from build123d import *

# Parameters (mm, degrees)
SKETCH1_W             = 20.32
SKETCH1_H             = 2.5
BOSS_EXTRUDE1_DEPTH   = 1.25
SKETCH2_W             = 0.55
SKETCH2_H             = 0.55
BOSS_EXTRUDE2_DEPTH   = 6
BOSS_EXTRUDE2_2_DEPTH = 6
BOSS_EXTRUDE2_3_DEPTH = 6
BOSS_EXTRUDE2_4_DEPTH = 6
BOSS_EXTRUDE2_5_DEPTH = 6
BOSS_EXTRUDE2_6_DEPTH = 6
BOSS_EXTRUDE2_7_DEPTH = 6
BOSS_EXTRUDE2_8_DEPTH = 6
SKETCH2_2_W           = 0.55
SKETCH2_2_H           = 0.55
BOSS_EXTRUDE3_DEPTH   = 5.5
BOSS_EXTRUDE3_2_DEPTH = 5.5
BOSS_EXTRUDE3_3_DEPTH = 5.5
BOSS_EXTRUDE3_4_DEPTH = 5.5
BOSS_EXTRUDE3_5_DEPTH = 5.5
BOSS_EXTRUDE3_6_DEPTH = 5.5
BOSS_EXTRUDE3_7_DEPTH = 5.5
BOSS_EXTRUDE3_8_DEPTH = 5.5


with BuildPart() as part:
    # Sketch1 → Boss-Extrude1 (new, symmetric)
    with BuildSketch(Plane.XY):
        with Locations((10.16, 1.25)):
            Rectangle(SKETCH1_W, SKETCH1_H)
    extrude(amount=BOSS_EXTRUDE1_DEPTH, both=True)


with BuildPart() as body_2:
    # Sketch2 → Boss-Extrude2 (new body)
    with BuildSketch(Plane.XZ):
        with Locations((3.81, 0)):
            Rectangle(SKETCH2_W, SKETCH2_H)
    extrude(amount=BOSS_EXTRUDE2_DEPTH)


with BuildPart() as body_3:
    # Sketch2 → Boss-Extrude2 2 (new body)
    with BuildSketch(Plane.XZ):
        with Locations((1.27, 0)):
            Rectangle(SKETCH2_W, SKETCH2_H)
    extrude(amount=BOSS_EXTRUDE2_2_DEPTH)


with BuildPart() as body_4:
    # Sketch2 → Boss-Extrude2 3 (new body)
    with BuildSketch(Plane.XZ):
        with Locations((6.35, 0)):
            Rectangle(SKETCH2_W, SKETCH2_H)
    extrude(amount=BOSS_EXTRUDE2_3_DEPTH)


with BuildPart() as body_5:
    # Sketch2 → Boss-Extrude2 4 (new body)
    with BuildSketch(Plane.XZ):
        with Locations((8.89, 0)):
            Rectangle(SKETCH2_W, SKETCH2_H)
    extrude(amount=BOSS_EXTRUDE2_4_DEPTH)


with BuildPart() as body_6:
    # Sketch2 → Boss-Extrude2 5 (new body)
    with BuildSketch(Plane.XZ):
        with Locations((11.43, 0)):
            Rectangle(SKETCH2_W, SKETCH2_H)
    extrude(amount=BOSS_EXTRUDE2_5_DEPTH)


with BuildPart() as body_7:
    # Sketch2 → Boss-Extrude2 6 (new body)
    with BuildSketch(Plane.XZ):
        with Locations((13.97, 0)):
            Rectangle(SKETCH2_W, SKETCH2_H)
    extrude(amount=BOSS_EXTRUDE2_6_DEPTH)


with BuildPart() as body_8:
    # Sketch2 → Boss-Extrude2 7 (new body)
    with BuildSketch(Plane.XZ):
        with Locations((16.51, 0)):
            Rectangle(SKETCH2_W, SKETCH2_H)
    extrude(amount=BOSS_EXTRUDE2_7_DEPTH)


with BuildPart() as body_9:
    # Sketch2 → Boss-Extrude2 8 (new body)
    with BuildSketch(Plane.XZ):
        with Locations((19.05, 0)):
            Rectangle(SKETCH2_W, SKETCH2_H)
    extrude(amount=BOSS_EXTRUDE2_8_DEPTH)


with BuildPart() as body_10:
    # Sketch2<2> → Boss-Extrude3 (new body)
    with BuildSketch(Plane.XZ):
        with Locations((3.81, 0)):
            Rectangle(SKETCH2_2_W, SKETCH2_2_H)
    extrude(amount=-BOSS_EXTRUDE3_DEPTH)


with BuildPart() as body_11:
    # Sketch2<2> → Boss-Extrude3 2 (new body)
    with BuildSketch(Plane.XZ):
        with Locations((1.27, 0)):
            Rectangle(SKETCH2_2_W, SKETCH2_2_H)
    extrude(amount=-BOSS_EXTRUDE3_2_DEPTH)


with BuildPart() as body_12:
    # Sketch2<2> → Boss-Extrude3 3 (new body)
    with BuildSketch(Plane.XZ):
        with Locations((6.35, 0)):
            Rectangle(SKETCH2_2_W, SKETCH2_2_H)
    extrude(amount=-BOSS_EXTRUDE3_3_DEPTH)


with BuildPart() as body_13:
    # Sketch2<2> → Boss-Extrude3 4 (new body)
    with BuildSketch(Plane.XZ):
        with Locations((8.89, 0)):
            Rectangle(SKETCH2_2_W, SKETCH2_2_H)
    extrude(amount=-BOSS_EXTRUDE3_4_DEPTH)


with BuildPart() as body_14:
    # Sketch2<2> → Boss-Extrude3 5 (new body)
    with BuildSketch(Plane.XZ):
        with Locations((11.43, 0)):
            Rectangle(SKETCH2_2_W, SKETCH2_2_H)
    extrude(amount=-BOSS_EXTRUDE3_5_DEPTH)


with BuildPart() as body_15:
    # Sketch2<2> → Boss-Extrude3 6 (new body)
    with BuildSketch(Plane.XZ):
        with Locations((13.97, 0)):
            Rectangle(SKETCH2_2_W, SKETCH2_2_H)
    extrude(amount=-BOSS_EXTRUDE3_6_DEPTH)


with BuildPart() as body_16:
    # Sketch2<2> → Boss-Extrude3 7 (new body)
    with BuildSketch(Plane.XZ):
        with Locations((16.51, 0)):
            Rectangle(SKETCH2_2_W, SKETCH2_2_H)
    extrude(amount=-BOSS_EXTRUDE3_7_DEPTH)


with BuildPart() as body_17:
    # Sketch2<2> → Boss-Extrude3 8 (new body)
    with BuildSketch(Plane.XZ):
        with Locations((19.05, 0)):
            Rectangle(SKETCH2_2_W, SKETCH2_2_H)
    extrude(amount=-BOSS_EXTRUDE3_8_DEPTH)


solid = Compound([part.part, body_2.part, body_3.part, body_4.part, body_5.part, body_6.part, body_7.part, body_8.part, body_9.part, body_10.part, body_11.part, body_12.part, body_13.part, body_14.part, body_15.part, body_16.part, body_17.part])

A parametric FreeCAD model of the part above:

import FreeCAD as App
import Part
import Sketcher
from FreeCAD import Vector


def add_polygon(sketch, points):
    """Adds a closed chain of lines whose ends are joined by coincident constraints."""
    first, n = sketch.GeometryCount, len(points)
    for a, b in zip(points, points[1:] + points[:1]):
        sketch.addGeometry(Part.LineSegment(App.Vector(*a, 0), App.Vector(*b, 0)), False)
    for i in range(n):
        sketch.addConstraint(Sketcher.Constraint("Coincident", first + i, 2, first + (i + 1) % n, 1))

doc = App.newDocument("Part")
body = doc.addObject("PartDesign::Body", "Body")

# Sketch on XY plane
sketch1 = body.newObject("Sketcher::SketchObject", "Sketch")
sketch1.AttachmentSupport = (doc.getObject("XY_Plane"), [""])
sketch1.MapMode = "FlatFace"
add_polygon(sketch1, [(0, 2.5), (0, 0), (20.3, 0), (20.3, 2.5)])  # lines 0-3
sketch1.addConstraint(Sketcher.Constraint("Vertical", 0))
sketch1.addConstraint(Sketcher.Constraint("Horizontal", 1))
sketch1.addConstraint(Sketcher.Constraint("Vertical", 2))
sketch1.addConstraint(Sketcher.Constraint("Horizontal", 3))
sketch1.addConstraint(Sketcher.Constraint("Coincident", 0, 2, -1, 1))
sketch1.addConstraint(Sketcher.Constraint("DistanceY", 0, 2, 0, 1, 2.5))
sketch1.addConstraint(Sketcher.Constraint("DistanceX", 1, 1, 1, 2, 20.32))
pad1 = body.newObject("PartDesign::Pad", "Pad")
pad1.Profile = sketch1
pad1.Length = 2.5
pad1.Midplane = True
body2 = doc.addObject("PartDesign::Body", "Body001")

# Sketch on XZ plane
sketch2 = body2.newObject("Sketcher::SketchObject", "Sketch001")
sketch2.AttachmentSupport = (doc.getObject("XZ_Plane001"), [""])
sketch2.MapMode = "FlatFace"
add_polygon(sketch2, [(3.5, 0.3), (3.5, -0.3), (4.1, -0.3), (4.1, 0.3)])  # lines 0-3
sketch2.addConstraint(Sketcher.Constraint("Vertical", 0))
sketch2.addConstraint(Sketcher.Constraint("Horizontal", 1))
sketch2.addConstraint(Sketcher.Constraint("Vertical", 2))
sketch2.addConstraint(Sketcher.Constraint("Horizontal", 3))
sketch2.addConstraint(Sketcher.Constraint("Equal", 3, 0))
sketch2.addConstraint(Sketcher.Constraint("DistanceX", 1, 1, 1, 2, 0.55))
sketch2.addConstraint(Sketcher.Constraint("DistanceX", -1, 1, 0, 2, 3.535))
sketch2.addConstraint(Sketcher.Constraint("DistanceY", 0, 2, -1, 1, 0.275))
pad2 = body2.newObject("PartDesign::Pad", "Pad001")
pad2.Profile = sketch2
pad2.Length = 6
body3 = doc.addObject("PartDesign::Body", "Body002")

# Sketch on XZ plane
sketch3 = body3.newObject("Sketcher::SketchObject", "Sketch002")
sketch3.AttachmentSupport = (doc.getObject("XZ_Plane002"), [""])
sketch3.MapMode = "FlatFace"
add_polygon(sketch3, [(1, 0.3), (1, -0.3), (1.5, -0.3), (1.5, 0.3)])  # lines 0-3
sketch3.addConstraint(Sketcher.Constraint("Vertical", 0))
sketch3.addConstraint(Sketcher.Constraint("Horizontal", 1))
sketch3.addConstraint(Sketcher.Constraint("Vertical", 2))
sketch3.addConstraint(Sketcher.Constraint("Horizontal", 3))
sketch3.addConstraint(Sketcher.Constraint("Equal", 3, 0))
sketch3.addConstraint(Sketcher.Constraint("DistanceX", 1, 1, 1, 2, 0.55))
sketch3.addConstraint(Sketcher.Constraint("DistanceX", -1, 1, 0, 2, 0.995))
sketch3.addConstraint(Sketcher.Constraint("DistanceY", 0, 2, -1, 1, 0.275))
pad3 = body3.newObject("PartDesign::Pad", "Pad002")
pad3.Profile = sketch3
pad3.Length = 6
body4 = doc.addObject("PartDesign::Body", "Body003")

# Sketch on XZ plane
sketch4 = body4.newObject("Sketcher::SketchObject", "Sketch003")
sketch4.AttachmentSupport = (doc.getObject("XZ_Plane003"), [""])
sketch4.MapMode = "FlatFace"
add_polygon(sketch4, [(6.1, 0.3), (6.1, -0.3), (6.6, -0.3), (6.6, 0.3)])  # lines 0-3
sketch4.addConstraint(Sketcher.Constraint("Vertical", 0))
sketch4.addConstraint(Sketcher.Constraint("Horizontal", 1))
sketch4.addConstraint(Sketcher.Constraint("Vertical", 2))
sketch4.addConstraint(Sketcher.Constraint("Horizontal", 3))
sketch4.addConstraint(Sketcher.Constraint("Equal", 3, 0))
sketch4.addConstraint(Sketcher.Constraint("DistanceX", 1, 1, 1, 2, 0.55))
sketch4.addConstraint(Sketcher.Constraint("DistanceX", -1, 1, 0, 2, 6.075))
sketch4.addConstraint(Sketcher.Constraint("DistanceY", 0, 2, -1, 1, 0.275))
pad4 = body4.newObject("PartDesign::Pad", "Pad003")
pad4.Profile = sketch4
pad4.Length = 6
body5 = doc.addObject("PartDesign::Body", "Body004")

# Sketch on XZ plane
sketch5 = body5.newObject("Sketcher::SketchObject", "Sketch004")
sketch5.AttachmentSupport = (doc.getObject("XZ_Plane004"), [""])
sketch5.MapMode = "FlatFace"
add_polygon(sketch5, [(8.6, 0.3), (8.6, -0.3), (9.2, -0.3), (9.2, 0.3)])  # lines 0-3
sketch5.addConstraint(Sketcher.Constraint("Vertical", 0))
sketch5.addConstraint(Sketcher.Constraint("Horizontal", 1))
sketch5.addConstraint(Sketcher.Constraint("Vertical", 2))
sketch5.addConstraint(Sketcher.Constraint("Horizontal", 3))
sketch5.addConstraint(Sketcher.Constraint("Equal", 3, 0))
sketch5.addConstraint(Sketcher.Constraint("DistanceX", 1, 1, 1, 2, 0.55))
sketch5.addConstraint(Sketcher.Constraint("DistanceX", -1, 1, 0, 2, 8.615))
sketch5.addConstraint(Sketcher.Constraint("DistanceY", 0, 2, -1, 1, 0.275))
pad5 = body5.newObject("PartDesign::Pad", "Pad004")
pad5.Profile = sketch5
pad5.Length = 6
body6 = doc.addObject("PartDesign::Body", "Body005")

# Sketch on XZ plane
sketch6 = body6.newObject("Sketcher::SketchObject", "Sketch005")
sketch6.AttachmentSupport = (doc.getObject("XZ_Plane005"), [""])
sketch6.MapMode = "FlatFace"
add_polygon(sketch6, [(11.2, 0.3), (11.2, -0.3), (11.7, -0.3), (11.7, 0.3)])  # lines 0-3
sketch6.addConstraint(Sketcher.Constraint("Vertical", 0))
sketch6.addConstraint(Sketcher.Constraint("Horizontal", 1))
sketch6.addConstraint(Sketcher.Constraint("Vertical", 2))
sketch6.addConstraint(Sketcher.Constraint("Horizontal", 3))
sketch6.addConstraint(Sketcher.Constraint("Equal", 3, 0))
sketch6.addConstraint(Sketcher.Constraint("DistanceX", 1, 1, 1, 2, 0.55))
sketch6.addConstraint(Sketcher.Constraint("DistanceX", -1, 1, 0, 2, 11.155))
sketch6.addConstraint(Sketcher.Constraint("DistanceY", 0, 2, -1, 1, 0.275))
pad6 = body6.newObject("PartDesign::Pad", "Pad005")
pad6.Profile = sketch6
pad6.Length = 6
body7 = doc.addObject("PartDesign::Body", "Body006")

# Sketch on XZ plane
sketch7 = body7.newObject("Sketcher::SketchObject", "Sketch006")
sketch7.AttachmentSupport = (doc.getObject("XZ_Plane006"), [""])
sketch7.MapMode = "FlatFace"
add_polygon(sketch7, [(13.7, 0.3), (13.7, -0.3), (14.2, -0.3), (14.2, 0.3)])  # lines 0-3
sketch7.addConstraint(Sketcher.Constraint("Vertical", 0))
sketch7.addConstraint(Sketcher.Constraint("Horizontal", 1))
sketch7.addConstraint(Sketcher.Constraint("Vertical", 2))
sketch7.addConstraint(Sketcher.Constraint("Horizontal", 3))
sketch7.addConstraint(Sketcher.Constraint("Equal", 3, 0))
sketch7.addConstraint(Sketcher.Constraint("DistanceX", 1, 1, 1, 2, 0.55))
sketch7.addConstraint(Sketcher.Constraint("DistanceX", -1, 1, 0, 2, 13.695))
sketch7.addConstraint(Sketcher.Constraint("DistanceY", 0, 2, -1, 1, 0.275))
pad7 = body7.newObject("PartDesign::Pad", "Pad006")
pad7.Profile = sketch7
pad7.Length = 6
body8 = doc.addObject("PartDesign::Body", "Body007")

# Sketch on XZ plane
sketch8 = body8.newObject("Sketcher::SketchObject", "Sketch007")
sketch8.AttachmentSupport = (doc.getObject("XZ_Plane007"), [""])
sketch8.MapMode = "FlatFace"
add_polygon(sketch8, [(16.2, 0.3), (16.2, -0.3), (16.8, -0.3), (16.8, 0.3)])  # lines 0-3
sketch8.addConstraint(Sketcher.Constraint("Vertical", 0))
sketch8.addConstraint(Sketcher.Constraint("Horizontal", 1))
sketch8.addConstraint(Sketcher.Constraint("Vertical", 2))
sketch8.addConstraint(Sketcher.Constraint("Horizontal", 3))
sketch8.addConstraint(Sketcher.Constraint("Equal", 3, 0))
sketch8.addConstraint(Sketcher.Constraint("DistanceX", 1, 1, 1, 2, 0.55))
sketch8.addConstraint(Sketcher.Constraint("DistanceX", -1, 1, 0, 2, 16.235))
sketch8.addConstraint(Sketcher.Constraint("DistanceY", 0, 2, -1, 1, 0.275))
pad8 = body8.newObject("PartDesign::Pad", "Pad007")
pad8.Profile = sketch8
pad8.Length = 6
body9 = doc.addObject("PartDesign::Body", "Body008")

# Sketch on XZ plane
sketch9 = body9.newObject("Sketcher::SketchObject", "Sketch008")
sketch9.AttachmentSupport = (doc.getObject("XZ_Plane008"), [""])
sketch9.MapMode = "FlatFace"
add_polygon(sketch9, [(18.8, 0.3), (18.8, -0.3), (19.3, -0.3), (19.3, 0.3)])  # lines 0-3
sketch9.addConstraint(Sketcher.Constraint("Vertical", 0))
sketch9.addConstraint(Sketcher.Constraint("Horizontal", 1))
sketch9.addConstraint(Sketcher.Constraint("Vertical", 2))
sketch9.addConstraint(Sketcher.Constraint("Horizontal", 3))
sketch9.addConstraint(Sketcher.Constraint("Equal", 3, 0))
sketch9.addConstraint(Sketcher.Constraint("DistanceX", 1, 1, 1, 2, 0.55))
sketch9.addConstraint(Sketcher.Constraint("DistanceX", -1, 1, 0, 2, 18.775))
sketch9.addConstraint(Sketcher.Constraint("DistanceY", 0, 2, -1, 1, 0.275))
pad9 = body9.newObject("PartDesign::Pad", "Pad008")
pad9.Profile = sketch9
pad9.Length = 6
body10 = doc.addObject("PartDesign::Body", "Body009")

# Sketch on XZ plane
sketch10 = body10.newObject("Sketcher::SketchObject", "Sketch009")
sketch10.AttachmentSupport = (doc.getObject("XZ_Plane009"), [""])
sketch10.MapMode = "FlatFace"
add_polygon(sketch10, [(3.5, 0.3), (3.5, -0.3), (4.1, -0.3), (4.1, 0.3)])  # lines 0-3
sketch10.addConstraint(Sketcher.Constraint("Vertical", 0))
sketch10.addConstraint(Sketcher.Constraint("Horizontal", 1))
sketch10.addConstraint(Sketcher.Constraint("Vertical", 2))
sketch10.addConstraint(Sketcher.Constraint("Horizontal", 3))
sketch10.addConstraint(Sketcher.Constraint("Equal", 3, 0))
sketch10.addConstraint(Sketcher.Constraint("DistanceX", 1, 1, 1, 2, 0.55))
sketch10.addConstraint(Sketcher.Constraint("DistanceX", -1, 1, 0, 2, 3.535))
sketch10.addConstraint(Sketcher.Constraint("DistanceY", 0, 2, -1, 1, 0.275))
pad10 = body10.newObject("PartDesign::Pad", "Pad009")
pad10.Profile = sketch10
pad10.Length = 5.5
pad10.Reversed = True
body11 = doc.addObject("PartDesign::Body", "Body010")

# Sketch on XZ plane
sketch11 = body11.newObject("Sketcher::SketchObject", "Sketch010")
sketch11.AttachmentSupport = (doc.getObject("XZ_Plane010"), [""])
sketch11.MapMode = "FlatFace"
add_polygon(sketch11, [(1, 0.3), (1, -0.3), (1.5, -0.3), (1.5, 0.3)])  # lines 0-3
sketch11.addConstraint(Sketcher.Constraint("Vertical", 0))
sketch11.addConstraint(Sketcher.Constraint("Horizontal", 1))
sketch11.addConstraint(Sketcher.Constraint("Vertical", 2))
sketch11.addConstraint(Sketcher.Constraint("Horizontal", 3))
sketch11.addConstraint(Sketcher.Constraint("Equal", 3, 0))
sketch11.addConstraint(Sketcher.Constraint("DistanceX", 1, 1, 1, 2, 0.55))
sketch11.addConstraint(Sketcher.Constraint("DistanceX", -1, 1, 0, 2, 0.995))
sketch11.addConstraint(Sketcher.Constraint("DistanceY", 0, 2, -1, 1, 0.275))
pad11 = body11.newObject("PartDesign::Pad", "Pad010")
pad11.Profile = sketch11
pad11.Length = 5.5
pad11.Reversed = True
body12 = doc.addObject("PartDesign::Body", "Body011")

# Sketch on XZ plane
sketch12 = body12.newObject("Sketcher::SketchObject", "Sketch011")
sketch12.AttachmentSupport = (doc.getObject("XZ_Plane011"), [""])
sketch12.MapMode = "FlatFace"
add_polygon(sketch12, [(6.1, 0.3), (6.1, -0.3), (6.6, -0.3), (6.6, 0.3)])  # lines 0-3
sketch12.addConstraint(Sketcher.Constraint("Vertical", 0))
sketch12.addConstraint(Sketcher.Constraint("Horizontal", 1))
sketch12.addConstraint(Sketcher.Constraint("Vertical", 2))
sketch12.addConstraint(Sketcher.Constraint("Horizontal", 3))
sketch12.addConstraint(Sketcher.Constraint("Equal", 3, 0))
sketch12.addConstraint(Sketcher.Constraint("DistanceX", 1, 1, 1, 2, 0.55))
sketch12.addConstraint(Sketcher.Constraint("DistanceX", -1, 1, 0, 2, 6.075))
sketch12.addConstraint(Sketcher.Constraint("DistanceY", 0, 2, -1, 1, 0.275))
pad12 = body12.newObject("PartDesign::Pad", "Pad011")
pad12.Profile = sketch12
pad12.Length = 5.5
pad12.Reversed = True
body13 = doc.addObject("PartDesign::Body", "Body012")

# Sketch on XZ plane
sketch13 = body13.newObject("Sketcher::SketchObject", "Sketch012")
sketch13.AttachmentSupport = (doc.getObject("XZ_Plane012"), [""])
sketch13.MapMode = "FlatFace"
add_polygon(sketch13, [(8.6, 0.3), (8.6, -0.3), (9.2, -0.3), (9.2, 0.3)])  # lines 0-3
sketch13.addConstraint(Sketcher.Constraint("Vertical", 0))
sketch13.addConstraint(Sketcher.Constraint("Horizontal", 1))
sketch13.addConstraint(Sketcher.Constraint("Vertical", 2))
sketch13.addConstraint(Sketcher.Constraint("Horizontal", 3))
sketch13.addConstraint(Sketcher.Constraint("Equal", 3, 0))
sketch13.addConstraint(Sketcher.Constraint("DistanceX", 1, 1, 1, 2, 0.55))
sketch13.addConstraint(Sketcher.Constraint("DistanceX", -1, 1, 0, 2, 8.615))
sketch13.addConstraint(Sketcher.Constraint("DistanceY", 0, 2, -1, 1, 0.275))
pad13 = body13.newObject("PartDesign::Pad", "Pad012")
pad13.Profile = sketch13
pad13.Length = 5.5
pad13.Reversed = True
body14 = doc.addObject("PartDesign::Body", "Body013")

# Sketch on XZ plane
sketch14 = body14.newObject("Sketcher::SketchObject", "Sketch013")
sketch14.AttachmentSupport = (doc.getObject("XZ_Plane013"), [""])
sketch14.MapMode = "FlatFace"
add_polygon(sketch14, [(11.2, 0.3), (11.2, -0.3), (11.7, -0.3), (11.7, 0.3)])  # lines 0-3
sketch14.addConstraint(Sketcher.Constraint("Vertical", 0))
sketch14.addConstraint(Sketcher.Constraint("Horizontal", 1))
sketch14.addConstraint(Sketcher.Constraint("Vertical", 2))
sketch14.addConstraint(Sketcher.Constraint("Horizontal", 3))
sketch14.addConstraint(Sketcher.Constraint("Equal", 3, 0))
sketch14.addConstraint(Sketcher.Constraint("DistanceX", 1, 1, 1, 2, 0.55))
sketch14.addConstraint(Sketcher.Constraint("DistanceX", -1, 1, 0, 2, 11.155))
sketch14.addConstraint(Sketcher.Constraint("DistanceY", 0, 2, -1, 1, 0.275))
pad14 = body14.newObject("PartDesign::Pad", "Pad013")
pad14.Profile = sketch14
pad14.Length = 5.5
pad14.Reversed = True
body15 = doc.addObject("PartDesign::Body", "Body014")

# Sketch on XZ plane
sketch15 = body15.newObject("Sketcher::SketchObject", "Sketch014")
sketch15.AttachmentSupport = (doc.getObject("XZ_Plane014"), [""])
sketch15.MapMode = "FlatFace"
add_polygon(sketch15, [(13.7, 0.3), (13.7, -0.3), (14.2, -0.3), (14.2, 0.3)])  # lines 0-3
sketch15.addConstraint(Sketcher.Constraint("Vertical", 0))
sketch15.addConstraint(Sketcher.Constraint("Horizontal", 1))
sketch15.addConstraint(Sketcher.Constraint("Vertical", 2))
sketch15.addConstraint(Sketcher.Constraint("Horizontal", 3))
sketch15.addConstraint(Sketcher.Constraint("Equal", 3, 0))
sketch15.addConstraint(Sketcher.Constraint("DistanceX", 1, 1, 1, 2, 0.55))
sketch15.addConstraint(Sketcher.Constraint("DistanceX", -1, 1, 0, 2, 13.695))
sketch15.addConstraint(Sketcher.Constraint("DistanceY", 0, 2, -1, 1, 0.275))
pad15 = body15.newObject("PartDesign::Pad", "Pad014")
pad15.Profile = sketch15
pad15.Length = 5.5
pad15.Reversed = True
body16 = doc.addObject("PartDesign::Body", "Body015")

# Sketch on XZ plane
sketch16 = body16.newObject("Sketcher::SketchObject", "Sketch015")
sketch16.AttachmentSupport = (doc.getObject("XZ_Plane015"), [""])
sketch16.MapMode = "FlatFace"
add_polygon(sketch16, [(16.2, 0.3), (16.2, -0.3), (16.8, -0.3), (16.8, 0.3)])  # lines 0-3
sketch16.addConstraint(Sketcher.Constraint("Vertical", 0))
sketch16.addConstraint(Sketcher.Constraint("Horizontal", 1))
sketch16.addConstraint(Sketcher.Constraint("Vertical", 2))
sketch16.addConstraint(Sketcher.Constraint("Horizontal", 3))
sketch16.addConstraint(Sketcher.Constraint("Equal", 3, 0))
sketch16.addConstraint(Sketcher.Constraint("DistanceX", 1, 1, 1, 2, 0.55))
sketch16.addConstraint(Sketcher.Constraint("DistanceX", -1, 1, 0, 2, 16.235))
sketch16.addConstraint(Sketcher.Constraint("DistanceY", 0, 2, -1, 1, 0.275))
pad16 = body16.newObject("PartDesign::Pad", "Pad015")
pad16.Profile = sketch16
pad16.Length = 5.5
pad16.Reversed = True
body17 = doc.addObject("PartDesign::Body", "Body016")

# Sketch on XZ plane
sketch17 = body17.newObject("Sketcher::SketchObject", "Sketch016")
sketch17.AttachmentSupport = (doc.getObject("XZ_Plane016"), [""])
sketch17.MapMode = "FlatFace"
add_polygon(sketch17, [(18.8, 0.3), (18.8, -0.3), (19.3, -0.3), (19.3, 0.3)])  # lines 0-3
sketch17.addConstraint(Sketcher.Constraint("Vertical", 0))
sketch17.addConstraint(Sketcher.Constraint("Horizontal", 1))
sketch17.addConstraint(Sketcher.Constraint("Vertical", 2))
sketch17.addConstraint(Sketcher.Constraint("Horizontal", 3))
sketch17.addConstraint(Sketcher.Constraint("Equal", 3, 0))
sketch17.addConstraint(Sketcher.Constraint("DistanceX", 1, 1, 1, 2, 0.55))
sketch17.addConstraint(Sketcher.Constraint("DistanceX", -1, 1, 0, 2, 18.775))
sketch17.addConstraint(Sketcher.Constraint("DistanceY", 0, 2, -1, 1, 0.275))
pad17 = body17.newObject("PartDesign::Pad", "Pad016")
pad17.Profile = sketch17
pad17.Length = 5.5
pad17.Reversed = True

doc.recompute()
